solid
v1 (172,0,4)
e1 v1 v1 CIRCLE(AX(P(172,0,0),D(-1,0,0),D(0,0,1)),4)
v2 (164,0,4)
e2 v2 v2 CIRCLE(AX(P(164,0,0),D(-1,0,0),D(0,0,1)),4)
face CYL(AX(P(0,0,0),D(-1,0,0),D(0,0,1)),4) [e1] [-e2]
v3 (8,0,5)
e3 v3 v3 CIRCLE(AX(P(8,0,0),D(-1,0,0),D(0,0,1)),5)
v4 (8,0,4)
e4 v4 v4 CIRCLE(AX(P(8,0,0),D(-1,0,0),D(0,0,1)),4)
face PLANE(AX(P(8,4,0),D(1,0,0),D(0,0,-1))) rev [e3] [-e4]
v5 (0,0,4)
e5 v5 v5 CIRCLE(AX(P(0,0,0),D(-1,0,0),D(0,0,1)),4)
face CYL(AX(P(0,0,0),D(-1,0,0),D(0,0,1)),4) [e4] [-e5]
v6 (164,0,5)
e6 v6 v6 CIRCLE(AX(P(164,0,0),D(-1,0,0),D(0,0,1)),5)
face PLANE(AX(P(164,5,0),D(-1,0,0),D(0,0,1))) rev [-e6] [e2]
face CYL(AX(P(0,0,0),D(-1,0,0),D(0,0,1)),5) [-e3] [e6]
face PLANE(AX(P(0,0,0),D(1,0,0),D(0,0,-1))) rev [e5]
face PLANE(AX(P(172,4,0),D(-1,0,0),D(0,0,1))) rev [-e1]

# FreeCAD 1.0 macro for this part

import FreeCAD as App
import Part
import Sketcher

V = App.Vector
Q = App.Units.Quantity

doc = App.newDocument("Part")
body = doc.addObject("PartDesign::Body", "Body")

# Sketch on XY plane
sketch1 = doc.addObject("Sketcher::SketchObject", "Sketch")
body.addObject(sketch1)
sketch1.AttachmentSupport = (doc.XY_Plane, [""])
sketch1.MapMode = "FlatFace"
sketch1.addGeometry([
    Part.LineSegment(V(0, 4, 0), V(0, 0, 0)),  # 0
    Part.LineSegment(V(0, 0, 0), V(172, 0, 0)),  # 1
    Part.LineSegment(V(172, 0, 0), V(172, 4, 0)),  # 2
    Part.LineSegment(V(172, 4, 0), V(164, 4, 0)),  # 3
    Part.LineSegment(V(164, 4, 0), V(164, 5, 0)),  # 4
    Part.LineSegment(V(164, 5, 0), V(8, 5, 0)),  # 5
    Part.LineSegment(V(8, 5, 0), V(8, 4, 0)),  # 6
    Part.LineSegment(V(8, 4, 0), V(0, 4, 0)),  # 7
], False)
sketch1.addConstraint([
    Sketcher.Constraint("Coincident", 0, 2, 1, 1),
    Sketcher.Constraint("Coincident", 1, 2, 2, 1),
    Sketcher.Constraint("Coincident", 2, 2, 3, 1),
    Sketcher.Constraint("Coincident", 3, 2, 4, 1),
    Sketcher.Constraint("Coincident", 4, 2, 5, 1),
    Sketcher.Constraint("Coincident", 5, 2, 6, 1),
    Sketcher.Constraint("Coincident", 6, 2, 7, 1),
    Sketcher.Constraint("Coincident", 7, 2, 0, 1),
    Sketcher.Constraint("Vertical", 0),
    Sketcher.Constraint("Horizontal", 1),
    Sketcher.Constraint("Vertical", 2),
    Sketcher.Constraint("Horizontal", 3),
    Sketcher.Constraint("Vertical", 4),
    Sketcher.Constraint("Horizontal", 5),
    Sketcher.Constraint("Vertical", 6),
    Sketcher.Constraint("Horizontal", 7),
    Sketcher.Constraint("Coincident", 0, 2, -1, 1),
    Sketcher.Constraint("Horizontal", 3, 2, 6, 2),
    Sketcher.Constraint("Equal", 3, 7),
    Sketcher.Constraint("DistanceX", 1, 1, 1, 2, Q("172 mm")),
    Sketcher.Constraint("DistanceX", 3, 2, 3, 1, Q("8 mm")),
    Sketcher.Constraint("DistanceY", 0, 2, 0, 1, Q("4 mm")),
    Sketcher.Constraint("DistanceY", 4, 1, 4, 2, Q("1 mm")),
])
revolution = doc.addObject("PartDesign::Revolution", "Revolution")
body.addObject(revolution)
revolution.Profile = sketch1
revolution.ReferenceAxis = (sketch1, ["H_Axis"])
revolution.Angle = 360

doc.recompute()
